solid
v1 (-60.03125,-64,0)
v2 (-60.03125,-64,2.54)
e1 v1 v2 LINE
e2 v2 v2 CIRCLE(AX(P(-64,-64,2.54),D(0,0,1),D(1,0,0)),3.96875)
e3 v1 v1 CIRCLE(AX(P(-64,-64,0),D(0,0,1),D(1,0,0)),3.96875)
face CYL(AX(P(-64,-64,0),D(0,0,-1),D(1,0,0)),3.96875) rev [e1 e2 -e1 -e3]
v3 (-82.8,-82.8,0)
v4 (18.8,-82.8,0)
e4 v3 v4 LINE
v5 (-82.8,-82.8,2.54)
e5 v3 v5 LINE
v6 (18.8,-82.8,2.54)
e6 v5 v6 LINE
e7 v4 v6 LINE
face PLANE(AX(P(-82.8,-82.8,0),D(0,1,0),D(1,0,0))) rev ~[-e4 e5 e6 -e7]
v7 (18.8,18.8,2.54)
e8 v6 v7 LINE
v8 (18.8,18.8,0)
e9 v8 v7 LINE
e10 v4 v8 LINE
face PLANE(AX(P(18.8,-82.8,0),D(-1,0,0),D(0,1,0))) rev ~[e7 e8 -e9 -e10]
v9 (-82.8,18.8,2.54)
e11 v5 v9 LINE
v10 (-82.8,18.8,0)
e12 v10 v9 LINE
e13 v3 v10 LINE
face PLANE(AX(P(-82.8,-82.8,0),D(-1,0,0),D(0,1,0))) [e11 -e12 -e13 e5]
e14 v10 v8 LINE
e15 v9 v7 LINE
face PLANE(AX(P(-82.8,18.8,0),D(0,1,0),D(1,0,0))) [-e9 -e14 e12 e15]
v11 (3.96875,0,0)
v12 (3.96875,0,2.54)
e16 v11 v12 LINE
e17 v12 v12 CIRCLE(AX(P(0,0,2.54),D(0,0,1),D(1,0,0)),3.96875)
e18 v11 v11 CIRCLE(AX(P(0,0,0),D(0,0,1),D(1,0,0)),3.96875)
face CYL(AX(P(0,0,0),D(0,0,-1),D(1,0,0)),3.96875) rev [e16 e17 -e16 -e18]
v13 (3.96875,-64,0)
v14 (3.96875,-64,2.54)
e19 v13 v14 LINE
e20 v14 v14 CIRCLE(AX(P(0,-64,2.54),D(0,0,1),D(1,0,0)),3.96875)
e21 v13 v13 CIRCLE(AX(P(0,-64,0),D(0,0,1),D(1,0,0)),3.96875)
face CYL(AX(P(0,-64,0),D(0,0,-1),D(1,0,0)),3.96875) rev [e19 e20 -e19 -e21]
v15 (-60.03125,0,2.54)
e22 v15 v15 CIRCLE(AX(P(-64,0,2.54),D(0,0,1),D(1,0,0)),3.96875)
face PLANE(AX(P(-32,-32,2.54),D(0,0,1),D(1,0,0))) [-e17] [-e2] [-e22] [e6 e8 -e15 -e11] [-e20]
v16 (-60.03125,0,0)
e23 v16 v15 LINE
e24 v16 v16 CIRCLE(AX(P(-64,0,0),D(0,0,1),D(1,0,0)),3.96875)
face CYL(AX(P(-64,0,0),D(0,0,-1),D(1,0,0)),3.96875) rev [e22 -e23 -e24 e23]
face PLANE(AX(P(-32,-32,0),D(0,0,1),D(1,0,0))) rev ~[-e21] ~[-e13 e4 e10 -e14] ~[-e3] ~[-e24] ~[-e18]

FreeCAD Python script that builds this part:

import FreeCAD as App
import Part
import Sketcher
from FreeCAD import Vector
Q = App.Units.Quantity


def add_polygon(sketch, points):
    """Adds a closed chain of lines whose ends are joined by coincident constraints."""
    first, n = sketch.GeometryCount, len(points)
    for a, b in zip(points, points[1:] + points[:1]):
        sketch.addGeometry(Part.LineSegment(App.Vector(*a, 0), App.Vector(*b, 0)), False)
    for i in range(n):
        sketch.addConstraint(Sketcher.Constraint("Coincident", first + i, 2, first + (i + 1) % n, 1))

doc = App.newDocument("Part")
body = doc.addObject("PartDesign::Body", "Body")

# Sketch on XY plane
sketch1 = body.newObject("Sketcher::SketchObject", "Sketch")
sketch1.AttachmentSupport = (doc.getObject("XY_Plane"), [""])
sketch1.MapMode = "FlatFace"
add_polygon(sketch1, [(-82.8, 18.8), (-82.8, -82.8), (18.8, -82.8), (18.8, 18.8)])  # lines 0-3
sketch1.addGeometry(Part.Circle(Vector(-64, -64, 0), Vector(0, 0, 1), 4), False)  # 4
sketch1.addGeometry(Part.Circle(Vector(0, -64, 0), Vector(0, 0, 1), 4), False)  # 5
sketch1.addGeometry(Part.Circle(Vector(-64, 0, 0), Vector(0, 0, 1), 4), False)  # 6
sketch1.addGeometry(Part.Circle(Vector(0, 0, 0), Vector(0, 0, 1), 4), False)  # 7
sketch1.addConstraint(Sketcher.Constraint("Vertical", 0))
sketch1.addConstraint(Sketcher.Constraint("Horizontal", 1))
sketch1.addConstraint(Sketcher.Constraint("Vertical", 2))
sketch1.addConstraint(Sketcher.Constraint("Horizontal", 3))
sketch1.addConstraint(Sketcher.Constraint("Coincident", 7, 3, -1, 1))
sketch1.addConstraint(Sketcher.Constraint("Equal", 4, 5))
sketch1.addConstraint(Sketcher.Constraint("Equal", 5, 6))
sketch1.addConstraint(Sketcher.Constraint("Equal", 6, 7))
sketch1.addConstraint(Sketcher.Constraint("PointOnObject", 5, 3, -2))
sketch1.addConstraint(Sketcher.Constraint("PointOnObject", 6, 3, -1))
sketch1.addConstraint(Sketcher.Constraint("Horizontal", 4, 3, 5, 3))
sketch1.addConstraint(Sketcher.Constraint("Vertical", 4, 3, 6, 3))
sketch1.addConstraint(Sketcher.Constraint("Equal", 3, 0))
sketch1.addConstraint(Sketcher.Constraint("DistanceX", 1, 1, 1, 2, Q("4 in")))
sketch1.addConstraint(Sketcher.Constraint("Diameter", 4, Q("0.3125 in")))
sketch1.addConstraint(Sketcher.Constraint("DistanceX", 4, 3, -1, 1, 64.0))
sketch1.addConstraint(Sketcher.Constraint("DistanceY", 4, 3, -1, 1, 64.0))
sketch1.addConstraint(Sketcher.Constraint("DistanceX", 0, 2, -1, 1, 82.8))
sketch1.addConstraint(Sketcher.Constraint("DistanceY", 0, 2, -1, 1, 82.8))
pad1 = body.newObject("PartDesign::Pad", "Pad")
pad1.Profile = sketch1
pad1.Length = Q("0.1 in")

doc.recompute()
